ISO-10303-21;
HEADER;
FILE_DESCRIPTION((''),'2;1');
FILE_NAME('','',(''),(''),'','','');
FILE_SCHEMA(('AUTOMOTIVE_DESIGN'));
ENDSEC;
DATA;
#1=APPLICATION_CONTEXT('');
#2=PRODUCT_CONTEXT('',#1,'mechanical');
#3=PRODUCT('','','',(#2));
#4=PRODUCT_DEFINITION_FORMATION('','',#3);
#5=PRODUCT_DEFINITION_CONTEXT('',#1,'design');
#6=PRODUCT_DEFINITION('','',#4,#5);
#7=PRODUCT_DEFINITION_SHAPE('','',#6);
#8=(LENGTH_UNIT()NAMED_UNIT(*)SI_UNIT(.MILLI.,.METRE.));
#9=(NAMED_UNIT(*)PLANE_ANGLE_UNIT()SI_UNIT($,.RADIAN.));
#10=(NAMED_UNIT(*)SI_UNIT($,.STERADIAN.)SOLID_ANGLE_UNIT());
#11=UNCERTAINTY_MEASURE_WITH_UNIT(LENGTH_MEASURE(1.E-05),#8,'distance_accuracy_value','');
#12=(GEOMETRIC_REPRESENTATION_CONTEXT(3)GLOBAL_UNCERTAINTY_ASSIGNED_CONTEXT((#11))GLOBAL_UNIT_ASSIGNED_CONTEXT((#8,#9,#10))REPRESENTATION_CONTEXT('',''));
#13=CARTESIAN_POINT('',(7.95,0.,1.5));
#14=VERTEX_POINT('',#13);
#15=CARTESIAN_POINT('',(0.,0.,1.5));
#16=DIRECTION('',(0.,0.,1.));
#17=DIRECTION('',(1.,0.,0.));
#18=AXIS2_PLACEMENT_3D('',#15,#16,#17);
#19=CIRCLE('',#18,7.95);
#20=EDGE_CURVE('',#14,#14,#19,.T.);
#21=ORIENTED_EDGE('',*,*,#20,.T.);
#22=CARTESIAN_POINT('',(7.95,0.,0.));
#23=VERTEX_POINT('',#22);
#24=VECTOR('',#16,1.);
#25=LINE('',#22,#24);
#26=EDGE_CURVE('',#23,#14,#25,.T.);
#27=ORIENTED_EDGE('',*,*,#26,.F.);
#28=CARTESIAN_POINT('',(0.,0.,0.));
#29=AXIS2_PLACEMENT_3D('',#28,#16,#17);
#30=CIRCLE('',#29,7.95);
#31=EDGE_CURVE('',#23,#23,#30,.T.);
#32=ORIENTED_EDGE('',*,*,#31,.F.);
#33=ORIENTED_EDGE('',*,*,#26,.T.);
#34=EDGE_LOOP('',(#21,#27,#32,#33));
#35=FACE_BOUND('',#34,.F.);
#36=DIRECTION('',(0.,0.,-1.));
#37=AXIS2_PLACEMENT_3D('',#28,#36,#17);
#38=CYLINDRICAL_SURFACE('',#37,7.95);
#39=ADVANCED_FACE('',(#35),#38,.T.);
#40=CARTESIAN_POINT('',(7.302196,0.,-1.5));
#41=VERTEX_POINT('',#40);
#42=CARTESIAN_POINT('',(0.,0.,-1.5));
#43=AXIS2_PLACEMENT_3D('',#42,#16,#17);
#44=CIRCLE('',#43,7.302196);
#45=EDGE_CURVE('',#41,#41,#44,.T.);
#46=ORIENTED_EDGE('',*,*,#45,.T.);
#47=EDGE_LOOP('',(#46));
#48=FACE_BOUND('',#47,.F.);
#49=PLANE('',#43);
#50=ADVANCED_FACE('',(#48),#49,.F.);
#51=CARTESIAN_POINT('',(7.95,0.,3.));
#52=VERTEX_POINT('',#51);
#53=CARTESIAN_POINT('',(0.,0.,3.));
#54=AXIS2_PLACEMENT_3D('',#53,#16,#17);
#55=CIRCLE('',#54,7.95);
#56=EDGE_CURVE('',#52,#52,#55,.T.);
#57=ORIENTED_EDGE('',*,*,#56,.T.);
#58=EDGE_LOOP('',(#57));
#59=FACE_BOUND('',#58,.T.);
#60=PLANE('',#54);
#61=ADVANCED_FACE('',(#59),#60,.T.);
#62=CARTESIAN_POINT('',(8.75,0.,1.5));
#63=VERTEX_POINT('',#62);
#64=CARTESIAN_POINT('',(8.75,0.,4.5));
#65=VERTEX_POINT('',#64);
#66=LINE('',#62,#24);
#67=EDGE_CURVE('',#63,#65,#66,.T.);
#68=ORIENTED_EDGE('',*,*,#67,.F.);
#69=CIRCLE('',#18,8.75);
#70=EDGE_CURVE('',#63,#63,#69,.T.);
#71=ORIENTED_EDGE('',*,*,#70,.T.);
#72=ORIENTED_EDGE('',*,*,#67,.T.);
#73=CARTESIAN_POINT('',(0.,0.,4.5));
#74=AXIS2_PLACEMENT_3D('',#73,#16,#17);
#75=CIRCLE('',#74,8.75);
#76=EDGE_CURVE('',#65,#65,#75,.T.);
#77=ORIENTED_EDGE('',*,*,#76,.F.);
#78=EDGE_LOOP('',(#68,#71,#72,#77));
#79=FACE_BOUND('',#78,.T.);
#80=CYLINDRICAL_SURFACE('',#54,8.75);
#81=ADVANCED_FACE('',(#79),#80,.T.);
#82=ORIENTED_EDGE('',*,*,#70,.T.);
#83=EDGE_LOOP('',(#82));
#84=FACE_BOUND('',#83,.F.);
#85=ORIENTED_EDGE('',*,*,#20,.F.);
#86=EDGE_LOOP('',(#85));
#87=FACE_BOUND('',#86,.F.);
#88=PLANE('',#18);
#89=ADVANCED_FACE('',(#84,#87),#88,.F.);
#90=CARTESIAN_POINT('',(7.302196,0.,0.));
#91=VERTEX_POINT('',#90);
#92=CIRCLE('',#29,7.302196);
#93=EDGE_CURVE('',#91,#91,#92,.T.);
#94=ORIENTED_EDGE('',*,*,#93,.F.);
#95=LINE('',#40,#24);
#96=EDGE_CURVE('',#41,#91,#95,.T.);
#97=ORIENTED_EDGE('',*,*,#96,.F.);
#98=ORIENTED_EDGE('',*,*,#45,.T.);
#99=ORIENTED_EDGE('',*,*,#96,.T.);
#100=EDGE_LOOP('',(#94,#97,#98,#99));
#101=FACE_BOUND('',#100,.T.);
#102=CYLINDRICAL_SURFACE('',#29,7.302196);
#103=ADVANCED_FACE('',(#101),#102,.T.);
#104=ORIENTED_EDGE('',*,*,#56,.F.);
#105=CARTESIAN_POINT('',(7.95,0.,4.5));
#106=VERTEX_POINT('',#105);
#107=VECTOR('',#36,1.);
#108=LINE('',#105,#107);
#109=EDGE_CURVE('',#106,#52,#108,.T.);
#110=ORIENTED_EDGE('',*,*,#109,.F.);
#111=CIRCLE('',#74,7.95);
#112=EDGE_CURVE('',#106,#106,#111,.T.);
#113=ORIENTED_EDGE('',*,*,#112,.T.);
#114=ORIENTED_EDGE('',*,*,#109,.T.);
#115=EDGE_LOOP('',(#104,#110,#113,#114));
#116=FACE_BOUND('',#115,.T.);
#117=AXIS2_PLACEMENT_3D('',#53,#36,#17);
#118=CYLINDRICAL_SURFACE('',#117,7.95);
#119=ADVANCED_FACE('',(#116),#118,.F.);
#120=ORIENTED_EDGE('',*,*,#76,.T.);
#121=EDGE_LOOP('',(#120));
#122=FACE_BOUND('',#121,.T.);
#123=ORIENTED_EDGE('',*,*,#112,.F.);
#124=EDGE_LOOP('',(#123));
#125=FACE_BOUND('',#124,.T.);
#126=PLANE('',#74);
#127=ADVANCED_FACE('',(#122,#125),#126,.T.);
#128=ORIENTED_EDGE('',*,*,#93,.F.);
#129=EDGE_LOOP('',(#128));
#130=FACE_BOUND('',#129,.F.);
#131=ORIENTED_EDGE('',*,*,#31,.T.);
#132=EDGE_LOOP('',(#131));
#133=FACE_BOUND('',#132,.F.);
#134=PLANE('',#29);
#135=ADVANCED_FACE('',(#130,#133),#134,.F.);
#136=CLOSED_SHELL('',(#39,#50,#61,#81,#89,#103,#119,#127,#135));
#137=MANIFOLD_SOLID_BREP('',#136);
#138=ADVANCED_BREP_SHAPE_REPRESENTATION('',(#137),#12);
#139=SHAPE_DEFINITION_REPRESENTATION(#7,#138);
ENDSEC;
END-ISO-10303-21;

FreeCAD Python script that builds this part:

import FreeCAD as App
import Part
import Sketcher

doc = App.newDocument("Part")
body = doc.addObject("PartDesign::Body", "Body")

# Sketch on XY plane
sketch1 = doc.addObject("Sketcher::SketchObject", "Sketch")
body.addObject(sketch1)
sketch1.AttachmentSupport = (doc.XY_Plane, [""])
sketch1.MapMode = "FlatFace"
sketch1.addGeometry(Part.Circle(App.Vector(0, 0, 0), App.Vector(0, 0, 1), 8), False)
sketch1.addConstraint(Sketcher.Constraint("Coincident", 0, 3, -1, 1))
sketch1.addConstraint(Sketcher.Constraint("Diameter", 0, 15.9))
pad1 = doc.addObject("PartDesign::Pad", "Pad")
body.addObject(pad1)
pad1.Profile = sketch1
pad1.Length = 3

# Sketch on XY plane
sketch2 = doc.addObject("Sketcher::SketchObject", "Sketch001")
body.addObject(sketch2)
sketch2.AttachmentSupport = (doc.XY_Plane, [""])
sketch2.MapMode = "FlatFace"
sketch2.AttachmentOffset = App.Placement(App.Vector(0, 0, 3), App.Rotation())
sketch2.addGeometry(Part.Circle(App.Vector(0, 0, 0), App.Vector(0, 0, 1), 9), False)
sketch2.addGeometry(Part.Circle(App.Vector(0, 0, 0), App.Vector(0, 0, 1), 8), False)
sketch2.addConstraint(Sketcher.Constraint("Coincident", 0, 3, -1, 1))
sketch2.addConstraint(Sketcher.Constraint("Coincident", 1, 3, -1, 1))
sketch2.addConstraint(Sketcher.Constraint("Diameter", 0, 17.5))
sketch2.addConstraint(Sketcher.Constraint("Diameter", 1, 15.9))
pad2 = doc.addObject("PartDesign::Pad", "Pad001")
body.addObject(pad2)
pad2.Profile = sketch2
pad2.Length = 3
pad2.Midplane = True

# Sketch on XY plane
sketch3 = doc.addObject("Sketcher::SketchObject", "Sketch002")
body.addObject(sketch3)
sketch3.AttachmentSupport = (doc.XY_Plane, [""])
sketch3.MapMode = "FlatFace"
sketch3.addGeometry(Part.Circle(App.Vector(0, 0, 0), App.Vector(0, 0, 1), 7), False)
sketch3.addConstraint(Sketcher.Constraint("Coincident", 0, 3, -1, 1))
sketch3.addConstraint(Sketcher.Constraint("Diameter", 0, 14.604392))
pad3 = doc.addObject("PartDesign::Pad", "Pad002")
body.addObject(pad3)
pad3.Profile = sketch3
pad3.Length = 3
pad3.Midplane = True

doc.recompute()
